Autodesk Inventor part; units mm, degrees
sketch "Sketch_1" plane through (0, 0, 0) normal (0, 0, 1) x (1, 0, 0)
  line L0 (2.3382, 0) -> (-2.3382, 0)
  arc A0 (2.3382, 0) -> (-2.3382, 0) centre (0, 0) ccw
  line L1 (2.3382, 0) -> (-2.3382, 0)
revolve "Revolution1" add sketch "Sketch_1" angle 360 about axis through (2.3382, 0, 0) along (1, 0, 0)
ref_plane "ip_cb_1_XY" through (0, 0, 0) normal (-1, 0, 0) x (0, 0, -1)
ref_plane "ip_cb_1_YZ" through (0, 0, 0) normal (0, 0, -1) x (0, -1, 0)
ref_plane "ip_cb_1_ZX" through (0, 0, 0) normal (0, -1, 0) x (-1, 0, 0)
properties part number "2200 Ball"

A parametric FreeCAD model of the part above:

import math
import FreeCAD as App
import Part
import Sketcher
from FreeCAD import Vector

doc = App.newDocument("Part")
body = doc.addObject("PartDesign::Body", "Body")

# Sketch on XY plane
sketch1 = body.newObject("Sketcher::SketchObject", "Sketch")
sketch1.AttachmentSupport = (doc.getObject("XY_Plane"), [""])
sketch1.MapMode = "FlatFace"
sketch1.addGeometry([
    Part.LineSegment(Vector(-2.3, 0, 0), Vector(2.3, 0, 0)),
    Part.ArcOfCircle(Part.Circle(Vector(0, 0, 0), Vector(0, 0, 1), 2.3), math.radians(0), math.radians(180)),
], False)
sketch1.addConstraint([
    Sketcher.Constraint("Coincident", 0, 1, 1, 2),
    Sketcher.Constraint("Coincident", 1, 1, 0, 2),
    Sketcher.Constraint("Horizontal", 0),
    Sketcher.Constraint("Coincident", 1, 3, -1, 1),
    Sketcher.Constraint("PointOnObject", 0, 1, -1),
    Sketcher.Constraint("Radius", 1, 2.3382),
])
revolution = body.newObject("PartDesign::Revolution", "Revolution")
revolution.Profile = sketch1
revolution.ReferenceAxis = (sketch1, ["H_Axis"])
revolution.Angle = 360

doc.recompute()
